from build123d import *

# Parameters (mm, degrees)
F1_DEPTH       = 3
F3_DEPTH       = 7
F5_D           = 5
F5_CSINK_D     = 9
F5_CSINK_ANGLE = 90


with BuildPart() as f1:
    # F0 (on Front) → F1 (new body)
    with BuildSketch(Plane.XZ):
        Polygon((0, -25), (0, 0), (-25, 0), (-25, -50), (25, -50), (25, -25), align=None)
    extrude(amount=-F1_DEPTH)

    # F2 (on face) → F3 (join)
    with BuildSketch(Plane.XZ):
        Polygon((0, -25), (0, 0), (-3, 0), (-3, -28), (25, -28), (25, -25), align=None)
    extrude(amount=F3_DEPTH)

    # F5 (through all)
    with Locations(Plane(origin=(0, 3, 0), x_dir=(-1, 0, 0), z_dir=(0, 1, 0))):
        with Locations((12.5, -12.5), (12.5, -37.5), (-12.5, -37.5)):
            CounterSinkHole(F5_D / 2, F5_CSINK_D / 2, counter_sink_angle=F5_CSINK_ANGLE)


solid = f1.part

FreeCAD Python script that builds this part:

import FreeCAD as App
import Part
import Sketcher


def add_polygon(sketch, points):
    """Adds a closed chain of lines whose ends are joined by coincident constraints."""
    first, n = sketch.GeometryCount, len(points)
    for a, b in zip(points, points[1:] + points[:1]):
        sketch.addGeometry(Part.LineSegment(App.Vector(*a, 0), App.Vector(*b, 0)), False)
    for i in range(n):
        sketch.addConstraint(Sketcher.Constraint("Coincident", first + i, 2, first + (i + 1) % n, 1))

doc = App.newDocument("Part")
body = doc.addObject("PartDesign::Body", "Body")

sketch1 = body.newObject("Sketcher::SketchObject", "Sketch")
sketch1.AttachmentSupport = (doc.getObject("XZ_Plane"), [""])
sketch1.MapMode = "FlatFace"
add_polygon(sketch1, [(0, -25), (0, 0), (-25, 0), (-25, -50), (25, -50), (25, -25)])
sketch1.addConstraint([
    Sketcher.Constraint("Vertical", 0),
    Sketcher.Constraint("Horizontal", 1),
    Sketcher.Constraint("Vertical", 2),
    Sketcher.Constraint("Horizontal", 3),
    Sketcher.Constraint("Vertical", 4),
    Sketcher.Constraint("Horizontal", 5),
    Sketcher.Constraint("Coincident", 0, 2, -1, 1),
    Sketcher.Constraint("Equal", 1, 5),
    Sketcher.Constraint("Equal", 5, 0),
    Sketcher.Constraint("Equal", 3, 2),
    Sketcher.Constraint("DistanceX", 1, 2, 1, 1, 25.0),
])
pad1 = body.newObject("PartDesign::Pad", "Pad")
pad1.Profile = sketch1
pad1.Length = 3
pad1.Reversed = True

sketch2 = body.newObject("Sketcher::SketchObject", "Sketch001")
sketch2.AttachmentSupport = (doc.getObject("XZ_Plane"), [""])
sketch2.MapMode = "FlatFace"
add_polygon(sketch2, [(0, -25), (0, 0), (-3, 0), (-3, -28), (25, -28), (25, -25)])
sketch2.addConstraint([
    Sketcher.Constraint("Vertical", 0),
    Sketcher.Constraint("Horizontal", 1),
    Sketcher.Constraint("Vertical", 2),
    Sketcher.Constraint("Horizontal", 3),
    Sketcher.Constraint("Vertical", 4),
    Sketcher.Constraint("Horizontal", 5),
    Sketcher.Constraint("Coincident", 0, 2, -1, 1),
    Sketcher.Constraint("Equal", 5, 0),
    Sketcher.Constraint("Equal", 3, 2),
    Sketcher.Constraint("DistanceX", 1, 2, 1, 1, 3.0),
    Sketcher.Constraint("DistanceX", 3, 1, 3, 2, 28.0),
])
pad2 = body.newObject("PartDesign::Pad", "Pad001")
pad2.Profile = sketch2
pad2.Length = 7

sketch3 = body.newObject("Sketcher::SketchObject", "Sketch002")
sketch3.AttachmentSupport = (doc.getObject("XZ_Plane"), [""])
sketch3.MapMode = "FlatFace"
sketch3.AttachmentOffset = App.Placement(App.Vector(0, 0, -3), App.Rotation())
sketch3.addGeometry([
    Part.Circle(App.Vector(-12.5, -12.5, 0), App.Vector(0, 0, 1), 2.5),
    Part.Circle(App.Vector(-12.5, -37.5, 0), App.Vector(0, 0, 1), 2.5),
    Part.Circle(App.Vector(12.5, -37.5, 0), App.Vector(0, 0, 1), 2.5),
], False)
sketch3.addConstraint([
    Sketcher.Constraint("Equal", 0, 1),
    Sketcher.Constraint("Equal", 1, 2),
    Sketcher.Constraint("Symmetric", 1, 3, 2, 3, -2),
    Sketcher.Constraint("Vertical", 0, 3, 1, 3),
    Sketcher.Constraint("Diameter", 0, 5.0),
    Sketcher.Constraint("DistanceY", 1, 3, 0, 3, 25.0),
    Sketcher.Constraint("DistanceX", 1, 3, 2, 3, 25.0),
    Sketcher.Constraint("DistanceY", 0, 3, -1, 1, 12.5),
])
doc.recompute()
hole = body.newObject("PartDesign::Hole", "Hole")
hole.Profile = sketch3
hole.ThreadType = "None"
hole.Diameter = 5
hole.DepthType = "ThroughAll"
hole.HoleCutType = "Countersink"
hole.HoleCutDiameter = 9
hole.HoleCutCountersinkAngle = 90
hole.Reversed = True

doc.recompute()
